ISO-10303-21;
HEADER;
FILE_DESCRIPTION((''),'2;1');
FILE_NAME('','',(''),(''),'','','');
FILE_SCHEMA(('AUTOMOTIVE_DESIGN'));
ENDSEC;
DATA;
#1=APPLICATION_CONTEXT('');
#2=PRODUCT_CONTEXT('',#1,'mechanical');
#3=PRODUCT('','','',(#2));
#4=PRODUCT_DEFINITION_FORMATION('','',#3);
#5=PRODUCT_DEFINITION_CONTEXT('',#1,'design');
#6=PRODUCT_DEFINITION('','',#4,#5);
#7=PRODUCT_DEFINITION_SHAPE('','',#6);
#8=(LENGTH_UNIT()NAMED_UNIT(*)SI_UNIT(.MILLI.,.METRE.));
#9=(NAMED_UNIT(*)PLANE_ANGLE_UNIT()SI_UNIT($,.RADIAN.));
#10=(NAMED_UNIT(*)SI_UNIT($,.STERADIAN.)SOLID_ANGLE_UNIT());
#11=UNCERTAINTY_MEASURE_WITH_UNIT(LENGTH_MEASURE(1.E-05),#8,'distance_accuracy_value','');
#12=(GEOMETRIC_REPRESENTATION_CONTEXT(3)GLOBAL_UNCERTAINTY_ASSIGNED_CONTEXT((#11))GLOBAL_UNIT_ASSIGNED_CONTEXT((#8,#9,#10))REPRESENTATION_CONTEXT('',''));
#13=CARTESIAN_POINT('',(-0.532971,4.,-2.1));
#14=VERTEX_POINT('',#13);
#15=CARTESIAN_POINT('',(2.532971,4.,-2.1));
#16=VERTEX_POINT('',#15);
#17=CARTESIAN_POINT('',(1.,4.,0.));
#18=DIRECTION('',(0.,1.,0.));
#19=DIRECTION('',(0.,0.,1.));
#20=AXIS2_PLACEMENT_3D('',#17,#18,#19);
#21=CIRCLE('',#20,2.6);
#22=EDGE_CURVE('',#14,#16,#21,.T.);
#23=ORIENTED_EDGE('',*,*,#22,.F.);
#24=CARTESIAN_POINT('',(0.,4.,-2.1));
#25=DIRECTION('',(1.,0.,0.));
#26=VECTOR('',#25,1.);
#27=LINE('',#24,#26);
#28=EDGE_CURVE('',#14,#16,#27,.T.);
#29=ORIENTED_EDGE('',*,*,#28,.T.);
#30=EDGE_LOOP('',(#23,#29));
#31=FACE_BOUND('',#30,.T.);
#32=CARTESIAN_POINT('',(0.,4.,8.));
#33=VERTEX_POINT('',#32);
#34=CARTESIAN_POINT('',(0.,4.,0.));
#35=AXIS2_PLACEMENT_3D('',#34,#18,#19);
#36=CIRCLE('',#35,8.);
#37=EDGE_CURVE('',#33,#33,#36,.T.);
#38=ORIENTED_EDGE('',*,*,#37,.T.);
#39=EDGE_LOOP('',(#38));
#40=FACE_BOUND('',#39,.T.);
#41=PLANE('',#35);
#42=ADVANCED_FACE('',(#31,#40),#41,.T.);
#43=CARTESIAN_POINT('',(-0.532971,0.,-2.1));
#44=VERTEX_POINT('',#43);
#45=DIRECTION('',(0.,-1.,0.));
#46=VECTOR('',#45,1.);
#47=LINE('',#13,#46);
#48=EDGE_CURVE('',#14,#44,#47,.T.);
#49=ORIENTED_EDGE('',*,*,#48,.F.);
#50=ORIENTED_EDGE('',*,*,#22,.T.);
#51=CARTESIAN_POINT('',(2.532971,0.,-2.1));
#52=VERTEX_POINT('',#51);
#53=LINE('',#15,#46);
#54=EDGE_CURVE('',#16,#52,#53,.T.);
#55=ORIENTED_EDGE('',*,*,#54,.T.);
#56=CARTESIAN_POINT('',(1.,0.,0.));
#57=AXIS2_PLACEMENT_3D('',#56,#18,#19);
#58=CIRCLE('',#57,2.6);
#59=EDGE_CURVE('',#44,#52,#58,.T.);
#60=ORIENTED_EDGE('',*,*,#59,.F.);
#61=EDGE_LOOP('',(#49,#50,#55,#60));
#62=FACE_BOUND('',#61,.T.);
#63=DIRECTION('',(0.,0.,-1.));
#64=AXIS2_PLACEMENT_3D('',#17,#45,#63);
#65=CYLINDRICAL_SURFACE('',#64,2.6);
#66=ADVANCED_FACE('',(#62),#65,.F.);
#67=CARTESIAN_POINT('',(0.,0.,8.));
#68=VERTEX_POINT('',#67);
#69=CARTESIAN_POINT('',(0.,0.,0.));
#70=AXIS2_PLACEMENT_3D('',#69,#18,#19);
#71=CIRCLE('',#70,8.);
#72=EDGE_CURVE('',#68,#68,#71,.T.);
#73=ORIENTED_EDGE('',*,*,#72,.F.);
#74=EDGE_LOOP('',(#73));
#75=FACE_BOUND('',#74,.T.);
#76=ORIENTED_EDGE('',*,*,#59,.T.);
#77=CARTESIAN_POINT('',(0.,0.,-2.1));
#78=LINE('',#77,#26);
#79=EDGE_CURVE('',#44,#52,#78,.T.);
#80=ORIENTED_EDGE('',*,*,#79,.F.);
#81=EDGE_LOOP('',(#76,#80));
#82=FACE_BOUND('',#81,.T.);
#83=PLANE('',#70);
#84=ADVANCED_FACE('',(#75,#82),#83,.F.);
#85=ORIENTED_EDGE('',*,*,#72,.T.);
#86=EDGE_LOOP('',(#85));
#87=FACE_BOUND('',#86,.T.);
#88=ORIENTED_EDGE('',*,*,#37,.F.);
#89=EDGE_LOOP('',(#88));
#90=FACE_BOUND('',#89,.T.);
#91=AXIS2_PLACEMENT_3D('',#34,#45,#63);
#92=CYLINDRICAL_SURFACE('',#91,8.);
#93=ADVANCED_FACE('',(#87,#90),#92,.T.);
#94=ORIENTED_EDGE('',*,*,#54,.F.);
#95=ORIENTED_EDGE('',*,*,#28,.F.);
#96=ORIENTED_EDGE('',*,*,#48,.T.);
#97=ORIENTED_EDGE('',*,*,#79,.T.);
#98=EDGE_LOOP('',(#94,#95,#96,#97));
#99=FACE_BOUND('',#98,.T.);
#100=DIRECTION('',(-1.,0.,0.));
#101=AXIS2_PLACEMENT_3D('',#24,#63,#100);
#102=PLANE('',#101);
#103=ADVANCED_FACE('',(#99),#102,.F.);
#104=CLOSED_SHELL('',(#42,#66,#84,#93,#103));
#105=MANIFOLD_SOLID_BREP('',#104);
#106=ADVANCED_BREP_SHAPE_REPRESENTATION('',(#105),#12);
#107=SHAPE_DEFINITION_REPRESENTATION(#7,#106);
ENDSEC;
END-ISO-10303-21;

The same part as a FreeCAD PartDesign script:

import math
import FreeCAD as App
import Part
import Sketcher

doc = App.newDocument("Part")
params = doc.addObject("Spreadsheet::Sheet", "Params")
for row, (alias, value) in enumerate([
    ("sketch1_diameter", "16 mm"),
    ("sketch1_radius", "2.6 mm"),
    ("pad1_length", "4 mm"),
], start=1):
    params.set(f"A{row}", alias)
    params.set(f"B{row}", "=" + value)
    params.setAlias(f"B{row}", alias)

body = doc.addObject("PartDesign::Body", "Body")

sketch1 = body.newObject("Sketcher::SketchObject", "Sketch")
sketch1.AttachmentSupport = (doc.getObject("XZ_Plane"), [""])
sketch1.MapMode = "FlatFace"
sketch1.addGeometry([
    Part.Circle(App.Vector(0, 0, 0), App.Vector(0, 0, 1), 8),
    Part.ArcOfCircle(Part.Circle(App.Vector(1, 0, 0), App.Vector(0, 0, 1), 2.6), math.radians(-54), math.radians(234)),
    Part.LineSegment(App.Vector(-0.5, -2.1, 0), App.Vector(2.5, -2.1, 0)),
], False)
sketch1.addConstraint([
    Sketcher.Constraint("Coincident", 1, 1, 2, 2),
    Sketcher.Constraint("Coincident", 2, 1, 1, 2),
    Sketcher.Constraint("Horizontal", 2),
    Sketcher.Constraint("Coincident", 0, 3, -1, 1),
    Sketcher.Constraint("PointOnObject", 1, 3, -1),
    Sketcher.Constraint("Diameter", 0, 16.0),
    Sketcher.Constraint("Radius", 1, 2.6),
    Sketcher.Constraint("DistanceX", -1, 1, 1, 3, 1.0),
    Sketcher.Constraint("DistanceY", 1, 1, -1, 1, 2.1),
])
sketch1.setExpression("Constraints[5]", "Params.sketch1_diameter")
sketch1.setExpression("Constraints[6]", "Params.sketch1_radius")
pad1 = body.newObject("PartDesign::Pad", "Pad")
pad1.Profile = sketch1
pad1.setExpression("Length", "Params.pad1_length")
pad1.Reversed = True

doc.recompute()
